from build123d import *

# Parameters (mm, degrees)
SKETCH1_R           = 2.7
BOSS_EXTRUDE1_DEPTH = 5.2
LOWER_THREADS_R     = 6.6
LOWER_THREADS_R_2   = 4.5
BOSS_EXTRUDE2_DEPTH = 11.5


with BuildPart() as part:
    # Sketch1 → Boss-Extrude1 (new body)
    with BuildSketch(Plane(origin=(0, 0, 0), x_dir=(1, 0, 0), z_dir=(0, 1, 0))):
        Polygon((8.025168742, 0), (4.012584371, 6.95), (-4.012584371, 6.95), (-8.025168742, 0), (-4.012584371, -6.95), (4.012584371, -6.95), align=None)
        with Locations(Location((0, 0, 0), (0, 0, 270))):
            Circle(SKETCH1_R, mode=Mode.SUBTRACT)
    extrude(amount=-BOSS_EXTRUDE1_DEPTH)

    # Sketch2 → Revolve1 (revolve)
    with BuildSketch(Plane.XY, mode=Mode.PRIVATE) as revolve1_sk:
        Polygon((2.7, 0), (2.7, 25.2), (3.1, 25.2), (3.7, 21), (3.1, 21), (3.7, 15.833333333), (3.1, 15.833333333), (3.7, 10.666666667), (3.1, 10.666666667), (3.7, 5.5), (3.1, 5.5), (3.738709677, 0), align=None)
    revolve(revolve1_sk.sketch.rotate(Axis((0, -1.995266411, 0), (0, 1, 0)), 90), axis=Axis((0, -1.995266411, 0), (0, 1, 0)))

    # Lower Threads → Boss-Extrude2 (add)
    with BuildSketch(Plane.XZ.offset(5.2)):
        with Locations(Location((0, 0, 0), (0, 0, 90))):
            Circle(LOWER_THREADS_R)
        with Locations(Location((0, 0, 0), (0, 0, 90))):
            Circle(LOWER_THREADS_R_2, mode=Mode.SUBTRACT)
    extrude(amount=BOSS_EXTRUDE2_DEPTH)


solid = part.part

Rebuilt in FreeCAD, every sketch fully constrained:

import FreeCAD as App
import Part
import Sketcher

V = App.Vector
Q = App.Units.Quantity

doc = App.newDocument("Part")
params = doc.addObject("Spreadsheet::Sheet", "Params")
for row, (alias, value) in enumerate([
    ("sketch1_diameter", "5.4 mm"),
    ("pad1_length", "5.2 mm"),
    ("sketch2_width", "0.6 mm"),
    ("sketch2_width2", "0.4 mm"),
    ("sketch2_height", "25.2 mm"),
    ("revolution_angle", "360 deg"),
    ("sketch3_diameter", "9 mm"),
    ("sketch3_diameter2", "13.2 mm"),
    ("pad2_length", "11.5 mm"),
], start=1):
    params.set(f"A{row}", alias)
    params.set(f"B{row}", "=" + value)
    params.setAlias(f"B{row}", alias)

body = doc.addObject("PartDesign::Body", "Body")

# Sketch on XZ plane
sketch1 = body.newObject("Sketcher::SketchObject", "Sketch")
sketch1.AttachmentSupport = (doc.getObject("XZ_Plane"), [""])
sketch1.MapMode = "FlatFace"
sketch1.addGeometry([
    Part.LineSegment(V(8, 0, 0), V(4, -7, 0)),  # 0
    Part.LineSegment(V(4, -7, 0), V(-4, -7, 0)),  # 1
    Part.LineSegment(V(-4, -7, 0), V(-8, 0, 0)),  # 2
    Part.LineSegment(V(-8, 0, 0), V(-4, 7, 0)),  # 3
    Part.LineSegment(V(-4, 7, 0), V(4, 7, 0)),  # 4
    Part.LineSegment(V(4, 7, 0), V(8, 0, 0)),  # 5
    Part.Circle(V(0, 0, 0), V(0, 0, 1), 2.7),  # 6
], False)
sketch1.addConstraint([
    Sketcher.Constraint("Coincident", 0, 2, 1, 1),
    Sketcher.Constraint("Coincident", 1, 2, 2, 1),
    Sketcher.Constraint("Coincident", 2, 2, 3, 1),
    Sketcher.Constraint("Coincident", 3, 2, 4, 1),
    Sketcher.Constraint("Coincident", 4, 2, 5, 1),
    Sketcher.Constraint("Coincident", 5, 2, 0, 1),
    Sketcher.Constraint("Horizontal", 1),
    Sketcher.Constraint("Horizontal", 4),
    Sketcher.Constraint("Coincident", 6, 3, -1, 1),
    Sketcher.Constraint("Symmetric", 0, 2, 3, 2, -1, 1),
    Sketcher.Constraint("Symmetric", 2, 2, 5, 2, -1, 1),
    Sketcher.Constraint("PointOnObject", 2, 2, -1),
    Sketcher.Constraint("Parallel", 2, 5),
    Sketcher.Constraint("Vertical", 1, 2, 3, 2),
    Sketcher.Constraint("Diameter", 6, Q("5.4 mm")),
    Sketcher.Constraint("Angle", 0, Q("-120 deg")),
    Sketcher.Constraint("DistanceY", 1, 2, 3, 2, Q("13.9 mm")),
    Sketcher.Constraint("DistanceX", 1, 2, 1, 1, Q("8.025169 mm")),
])
sketch1.setExpression("Constraints[14]", "Params.sketch1_diameter")
pad1 = body.newObject("PartDesign::Pad", "Pad")
pad1.Profile = sketch1
pad1.setExpression("Length", "Params.pad1_length")

# Sketch on XY plane
sketch2 = body.newObject("Sketcher::SketchObject", "Sketch001")
sketch2.AttachmentSupport = (doc.getObject("XY_Plane"), [""])
sketch2.MapMode = "FlatFace"
sketch2.addGeometry([
    Part.LineSegment(V(2.7, 25.2, 0), V(2.7, 0, 0)),  # 0
    Part.LineSegment(V(2.7, 0, 0), V(3.74, 0, 0)),  # 1
    Part.LineSegment(V(3.74, 0, 0), V(3.1, 5.5, 0)),  # 2
    Part.LineSegment(V(3.1, 5.5, 0), V(3.7, 5.5, 0)),  # 3
    Part.LineSegment(V(3.7, 5.5, 0), V(3.1, 10.67, 0)),  # 4
    Part.LineSegment(V(3.1, 10.67, 0), V(3.7, 10.67, 0)),  # 5
    Part.LineSegment(V(3.7, 10.67, 0), V(3.1, 15.83, 0)),  # 6
    Part.LineSegment(V(3.1, 15.83, 0), V(3.7, 15.83, 0)),  # 7
    Part.LineSegment(V(3.7, 15.83, 0), V(3.1, 21, 0)),  # 8
    Part.LineSegment(V(3.1, 21, 0), V(3.7, 21, 0)),  # 9
    Part.LineSegment(V(3.7, 21, 0), V(3.1, 25.2, 0)),  # 10
    Part.LineSegment(V(3.1, 25.2, 0), V(2.7, 25.2, 0)),  # 11
], False)
sketch2.addConstraint([
    Sketcher.Constraint("Coincident", 0, 2, 1, 1),
    Sketcher.Constraint("Coincident", 1, 2, 2, 1),
    Sketcher.Constraint("Coincident", 2, 2, 3, 1),
    Sketcher.Constraint("Coincident", 3, 2, 4, 1),
    Sketcher.Constraint("Coincident", 4, 2, 5, 1),
    Sketcher.Constraint("Coincident", 5, 2, 6, 1),
    Sketcher.Constraint("Coincident", 6, 2, 7, 1),
    Sketcher.Constraint("Coincident", 7, 2, 8, 1),
    Sketcher.Constraint("Coincident", 8, 2, 9, 1),
    Sketcher.Constraint("Coincident", 9, 2, 10, 1),
    Sketcher.Constraint("Coincident", 10, 2, 11, 1),
    Sketcher.Constraint("Coincident", 11, 2, 0, 1),
    Sketcher.Constraint("Vertical", 0),
    Sketcher.Constraint("Horizontal", 1),
    Sketcher.Constraint("Horizontal", 3),
    Sketcher.Constraint("Horizontal", 5),
    Sketcher.Constraint("Horizontal", 7),
    Sketcher.Constraint("Horizontal", 9),
    Sketcher.Constraint("Horizontal", 11),
    Sketcher.Constraint("PointOnObject", 0, 2, -1),
    Sketcher.Constraint("Parallel", 2, 4),
    Sketcher.Constraint("Parallel", 4, 6),
    Sketcher.Constraint("Parallel", 6, 8),
    Sketcher.Constraint("Vertical", 2, 2, 4, 2),
    Sketcher.Constraint("Vertical", 3, 2, 5, 2),
    Sketcher.Constraint("Vertical", 4, 2, 6, 2),
    Sketcher.Constraint("Vertical", 5, 2, 7, 2),
    Sketcher.Constraint("Vertical", 6, 2, 8, 2),
    Sketcher.Constraint("Vertical", 7, 2, 9, 2),
    Sketcher.Constraint("Vertical", 8, 2, 10, 2),
    Sketcher.Constraint("DistanceX", 3, 1, 3, 2, Q("0.6 mm")),
    Sketcher.Constraint("DistanceX", 11, 2, 11, 1, Q("0.4 mm")),
    Sketcher.Constraint("DistanceY", 0, 2, 0, 1, Q("25.2 mm")),
    Sketcher.Constraint("DistanceY", -1, 1, 8, 2, Q("21 mm")),
    Sketcher.Constraint("DistanceX", -1, 1, 0, 2, Q("2.7 mm")),
    Sketcher.Constraint("DistanceY", -1, 1, 2, 2, Q("5.5 mm")),
])
sketch2.setExpression("Constraints[30]", "Params.sketch2_width")
sketch2.setExpression("Constraints[31]", "Params.sketch2_width2")
sketch2.setExpression("Constraints[32]", "Params.sketch2_height")
revolution = body.newObject("PartDesign::Revolution", "Revolution")
revolution.Profile = sketch2
revolution.ReferenceAxis = (sketch2, ["V_Axis"])
revolution.setExpression("Angle", "Params.revolution_angle")

# Sketch on XZ plane
sketch3 = body.newObject("Sketcher::SketchObject", "Sketch002")
sketch3.AttachmentSupport = (doc.getObject("XZ_Plane"), [""])
sketch3.MapMode = "FlatFace"
sketch3.AttachmentOffset = App.Placement(V(0, 0, 5.2), App.Rotation())
sketch3.addGeometry([
    Part.Circle(V(0, 0, 0), V(0, 0, 1), 6.6),
    Part.Circle(V(0, 0, 0), V(0, 0, 1), 4.5),
], False)
sketch3.addConstraint([
    Sketcher.Constraint("Coincident", 0, 3, -1, 1),
    Sketcher.Constraint("Coincident", 1, 3, -1, 1),
    Sketcher.Constraint("Diameter", 1, Q("9 mm")),
    Sketcher.Constraint("Diameter", 0, Q("13.2 mm")),
])
sketch3.setExpression("Constraints[2]", "Params.sketch3_diameter")
sketch3.setExpression("Constraints[3]", "Params.sketch3_diameter2")
pad2 = body.newObject("PartDesign::Pad", "Pad001")
pad2.Profile = sketch3
pad2.setExpression("Length", "Params.pad2_length")

doc.recompute()
